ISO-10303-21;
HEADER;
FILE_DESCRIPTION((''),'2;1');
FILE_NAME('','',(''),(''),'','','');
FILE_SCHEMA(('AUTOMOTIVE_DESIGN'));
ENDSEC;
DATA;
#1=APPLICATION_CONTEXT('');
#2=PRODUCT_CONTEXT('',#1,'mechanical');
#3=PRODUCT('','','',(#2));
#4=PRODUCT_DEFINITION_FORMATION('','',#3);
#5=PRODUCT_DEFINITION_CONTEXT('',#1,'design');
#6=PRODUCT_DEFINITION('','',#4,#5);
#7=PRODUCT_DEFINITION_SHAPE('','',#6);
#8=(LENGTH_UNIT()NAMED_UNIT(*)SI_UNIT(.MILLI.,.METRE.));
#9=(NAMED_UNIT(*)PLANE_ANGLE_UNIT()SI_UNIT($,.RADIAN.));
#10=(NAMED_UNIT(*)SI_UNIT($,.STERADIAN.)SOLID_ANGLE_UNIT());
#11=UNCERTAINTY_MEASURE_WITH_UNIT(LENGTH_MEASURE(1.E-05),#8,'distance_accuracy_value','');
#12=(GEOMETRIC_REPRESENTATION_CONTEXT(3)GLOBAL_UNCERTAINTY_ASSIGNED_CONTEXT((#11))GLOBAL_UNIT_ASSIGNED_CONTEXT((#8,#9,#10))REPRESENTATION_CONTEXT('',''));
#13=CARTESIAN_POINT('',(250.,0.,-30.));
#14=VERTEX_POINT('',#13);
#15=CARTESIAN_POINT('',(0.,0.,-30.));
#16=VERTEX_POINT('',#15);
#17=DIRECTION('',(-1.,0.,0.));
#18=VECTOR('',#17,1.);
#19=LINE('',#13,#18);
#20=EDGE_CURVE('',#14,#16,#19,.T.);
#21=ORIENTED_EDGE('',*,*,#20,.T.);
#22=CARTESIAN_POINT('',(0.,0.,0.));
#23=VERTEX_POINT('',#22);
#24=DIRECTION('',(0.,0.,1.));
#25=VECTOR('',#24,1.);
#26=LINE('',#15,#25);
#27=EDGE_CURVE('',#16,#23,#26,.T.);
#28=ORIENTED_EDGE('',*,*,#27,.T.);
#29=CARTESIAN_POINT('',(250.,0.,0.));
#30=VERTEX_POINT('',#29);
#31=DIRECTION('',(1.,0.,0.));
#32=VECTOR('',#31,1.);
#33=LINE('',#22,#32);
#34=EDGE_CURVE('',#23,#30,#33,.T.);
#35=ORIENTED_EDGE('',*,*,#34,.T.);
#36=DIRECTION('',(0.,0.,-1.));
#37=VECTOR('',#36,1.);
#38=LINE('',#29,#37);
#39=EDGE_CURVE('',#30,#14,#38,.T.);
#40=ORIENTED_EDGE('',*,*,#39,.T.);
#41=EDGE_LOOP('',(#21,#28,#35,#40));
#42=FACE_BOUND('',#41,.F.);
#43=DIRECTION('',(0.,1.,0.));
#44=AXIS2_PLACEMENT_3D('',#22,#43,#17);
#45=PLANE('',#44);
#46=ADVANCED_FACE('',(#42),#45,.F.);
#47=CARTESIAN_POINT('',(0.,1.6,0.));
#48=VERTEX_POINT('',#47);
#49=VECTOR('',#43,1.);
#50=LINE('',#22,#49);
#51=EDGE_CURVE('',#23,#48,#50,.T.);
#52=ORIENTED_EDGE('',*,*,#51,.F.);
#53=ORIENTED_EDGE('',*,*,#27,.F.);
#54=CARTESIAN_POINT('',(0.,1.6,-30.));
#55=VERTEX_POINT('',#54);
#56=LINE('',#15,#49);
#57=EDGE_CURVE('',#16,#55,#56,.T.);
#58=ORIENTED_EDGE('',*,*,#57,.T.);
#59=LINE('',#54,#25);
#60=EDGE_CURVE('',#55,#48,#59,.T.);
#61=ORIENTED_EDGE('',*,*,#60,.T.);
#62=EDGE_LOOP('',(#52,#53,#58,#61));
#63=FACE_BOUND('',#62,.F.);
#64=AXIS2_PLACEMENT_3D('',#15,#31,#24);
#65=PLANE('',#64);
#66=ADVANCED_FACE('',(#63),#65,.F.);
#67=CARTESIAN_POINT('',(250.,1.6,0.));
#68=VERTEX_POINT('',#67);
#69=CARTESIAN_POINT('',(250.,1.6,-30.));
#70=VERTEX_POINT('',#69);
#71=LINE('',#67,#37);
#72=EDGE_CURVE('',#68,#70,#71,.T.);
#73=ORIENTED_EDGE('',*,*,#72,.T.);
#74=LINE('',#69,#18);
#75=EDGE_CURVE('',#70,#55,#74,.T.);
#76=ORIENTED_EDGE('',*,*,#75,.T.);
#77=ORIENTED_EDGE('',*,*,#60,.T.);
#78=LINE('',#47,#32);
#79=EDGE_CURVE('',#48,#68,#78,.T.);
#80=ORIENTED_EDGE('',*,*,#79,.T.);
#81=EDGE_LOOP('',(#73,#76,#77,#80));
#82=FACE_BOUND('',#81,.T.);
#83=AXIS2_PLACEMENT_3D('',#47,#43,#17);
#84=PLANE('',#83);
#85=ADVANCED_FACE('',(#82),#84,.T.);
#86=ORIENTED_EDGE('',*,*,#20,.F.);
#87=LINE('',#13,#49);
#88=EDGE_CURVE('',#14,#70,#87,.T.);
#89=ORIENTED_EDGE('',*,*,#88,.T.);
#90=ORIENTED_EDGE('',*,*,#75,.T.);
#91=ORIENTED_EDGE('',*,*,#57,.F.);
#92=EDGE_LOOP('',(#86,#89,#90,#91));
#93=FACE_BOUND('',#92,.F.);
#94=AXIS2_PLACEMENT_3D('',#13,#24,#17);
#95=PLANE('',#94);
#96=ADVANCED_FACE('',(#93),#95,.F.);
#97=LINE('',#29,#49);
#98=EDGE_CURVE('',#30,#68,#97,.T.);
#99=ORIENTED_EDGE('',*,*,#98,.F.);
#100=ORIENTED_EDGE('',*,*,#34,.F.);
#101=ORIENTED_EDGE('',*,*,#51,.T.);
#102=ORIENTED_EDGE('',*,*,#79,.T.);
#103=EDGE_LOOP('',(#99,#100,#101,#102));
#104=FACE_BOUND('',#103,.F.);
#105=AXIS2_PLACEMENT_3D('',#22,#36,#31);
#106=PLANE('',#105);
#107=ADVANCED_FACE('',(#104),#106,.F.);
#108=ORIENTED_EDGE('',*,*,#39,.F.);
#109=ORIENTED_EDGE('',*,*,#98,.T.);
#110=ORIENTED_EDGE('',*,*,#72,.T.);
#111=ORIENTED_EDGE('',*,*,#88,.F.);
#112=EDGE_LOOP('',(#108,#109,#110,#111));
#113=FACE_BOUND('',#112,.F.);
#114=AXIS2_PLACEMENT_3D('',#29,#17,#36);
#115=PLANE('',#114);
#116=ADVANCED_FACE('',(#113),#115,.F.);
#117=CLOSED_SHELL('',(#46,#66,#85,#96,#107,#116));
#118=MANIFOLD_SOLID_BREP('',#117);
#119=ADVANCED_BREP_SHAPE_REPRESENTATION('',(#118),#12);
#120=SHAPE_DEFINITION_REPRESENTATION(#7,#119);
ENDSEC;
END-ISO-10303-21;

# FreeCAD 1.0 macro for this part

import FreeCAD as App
import Part
import Sketcher
from FreeCAD import Vector
Q = App.Units.Quantity

doc = App.newDocument("Part")
params = doc.addObject("Spreadsheet::Sheet", "Params")
for row, (alias, value) in enumerate([
    ("sketch1_width", "250 mm"),
    ("sketch1_height", "30 mm"),
    ("pad1_length", "1.6 mm"),
], start=1):
    params.set(f"A{row}", alias)
    params.set(f"B{row}", "=" + value)
    params.setAlias(f"B{row}", alias)

body = doc.addObject("PartDesign::Body", "Body")

# Sketch on XZ plane
sketch1 = body.newObject("Sketcher::SketchObject", "Sketch")
sketch1.AttachmentSupport = (doc.getObject("XZ_Plane"), [""])
sketch1.MapMode = "FlatFace"
sketch1.addGeometry([
    Part.LineSegment(Vector(0, -30, 0), Vector(0, 0, 0)),
    Part.LineSegment(Vector(0, 0, 0), Vector(250, 0, 0)),
    Part.LineSegment(Vector(250, 0, 0), Vector(250, -30, 0)),
    Part.LineSegment(Vector(250, -30, 0), Vector(0, -30, 0)),
], False)
sketch1.addConstraint([
    Sketcher.Constraint("Coincident", 0, 2, 1, 1),
    Sketcher.Constraint("Coincident", 1, 2, 2, 1),
    Sketcher.Constraint("Coincident", 2, 2, 3, 1),
    Sketcher.Constraint("Coincident", 3, 2, 0, 1),
    Sketcher.Constraint("Vertical", 0),
    Sketcher.Constraint("Horizontal", 1),
    Sketcher.Constraint("Vertical", 2),
    Sketcher.Constraint("Horizontal", 3),
    Sketcher.Constraint("Coincident", 0, 2, -1, 1),
    Sketcher.Constraint("DistanceX", 1, 1, 1, 2, Q("250 mm")),
    Sketcher.Constraint("DistanceY", 0, 1, 0, 2, Q("30 mm")),
])
sketch1.setExpression("Constraints[9]", "Params.sketch1_width")
sketch1.setExpression("Constraints[10]", "Params.sketch1_height")
pad1 = body.newObject("PartDesign::Pad", "Pad")
pad1.Profile = sketch1
pad1.setExpression("Length", "Params.pad1_length")
pad1.Reversed = True

doc.recompute()
